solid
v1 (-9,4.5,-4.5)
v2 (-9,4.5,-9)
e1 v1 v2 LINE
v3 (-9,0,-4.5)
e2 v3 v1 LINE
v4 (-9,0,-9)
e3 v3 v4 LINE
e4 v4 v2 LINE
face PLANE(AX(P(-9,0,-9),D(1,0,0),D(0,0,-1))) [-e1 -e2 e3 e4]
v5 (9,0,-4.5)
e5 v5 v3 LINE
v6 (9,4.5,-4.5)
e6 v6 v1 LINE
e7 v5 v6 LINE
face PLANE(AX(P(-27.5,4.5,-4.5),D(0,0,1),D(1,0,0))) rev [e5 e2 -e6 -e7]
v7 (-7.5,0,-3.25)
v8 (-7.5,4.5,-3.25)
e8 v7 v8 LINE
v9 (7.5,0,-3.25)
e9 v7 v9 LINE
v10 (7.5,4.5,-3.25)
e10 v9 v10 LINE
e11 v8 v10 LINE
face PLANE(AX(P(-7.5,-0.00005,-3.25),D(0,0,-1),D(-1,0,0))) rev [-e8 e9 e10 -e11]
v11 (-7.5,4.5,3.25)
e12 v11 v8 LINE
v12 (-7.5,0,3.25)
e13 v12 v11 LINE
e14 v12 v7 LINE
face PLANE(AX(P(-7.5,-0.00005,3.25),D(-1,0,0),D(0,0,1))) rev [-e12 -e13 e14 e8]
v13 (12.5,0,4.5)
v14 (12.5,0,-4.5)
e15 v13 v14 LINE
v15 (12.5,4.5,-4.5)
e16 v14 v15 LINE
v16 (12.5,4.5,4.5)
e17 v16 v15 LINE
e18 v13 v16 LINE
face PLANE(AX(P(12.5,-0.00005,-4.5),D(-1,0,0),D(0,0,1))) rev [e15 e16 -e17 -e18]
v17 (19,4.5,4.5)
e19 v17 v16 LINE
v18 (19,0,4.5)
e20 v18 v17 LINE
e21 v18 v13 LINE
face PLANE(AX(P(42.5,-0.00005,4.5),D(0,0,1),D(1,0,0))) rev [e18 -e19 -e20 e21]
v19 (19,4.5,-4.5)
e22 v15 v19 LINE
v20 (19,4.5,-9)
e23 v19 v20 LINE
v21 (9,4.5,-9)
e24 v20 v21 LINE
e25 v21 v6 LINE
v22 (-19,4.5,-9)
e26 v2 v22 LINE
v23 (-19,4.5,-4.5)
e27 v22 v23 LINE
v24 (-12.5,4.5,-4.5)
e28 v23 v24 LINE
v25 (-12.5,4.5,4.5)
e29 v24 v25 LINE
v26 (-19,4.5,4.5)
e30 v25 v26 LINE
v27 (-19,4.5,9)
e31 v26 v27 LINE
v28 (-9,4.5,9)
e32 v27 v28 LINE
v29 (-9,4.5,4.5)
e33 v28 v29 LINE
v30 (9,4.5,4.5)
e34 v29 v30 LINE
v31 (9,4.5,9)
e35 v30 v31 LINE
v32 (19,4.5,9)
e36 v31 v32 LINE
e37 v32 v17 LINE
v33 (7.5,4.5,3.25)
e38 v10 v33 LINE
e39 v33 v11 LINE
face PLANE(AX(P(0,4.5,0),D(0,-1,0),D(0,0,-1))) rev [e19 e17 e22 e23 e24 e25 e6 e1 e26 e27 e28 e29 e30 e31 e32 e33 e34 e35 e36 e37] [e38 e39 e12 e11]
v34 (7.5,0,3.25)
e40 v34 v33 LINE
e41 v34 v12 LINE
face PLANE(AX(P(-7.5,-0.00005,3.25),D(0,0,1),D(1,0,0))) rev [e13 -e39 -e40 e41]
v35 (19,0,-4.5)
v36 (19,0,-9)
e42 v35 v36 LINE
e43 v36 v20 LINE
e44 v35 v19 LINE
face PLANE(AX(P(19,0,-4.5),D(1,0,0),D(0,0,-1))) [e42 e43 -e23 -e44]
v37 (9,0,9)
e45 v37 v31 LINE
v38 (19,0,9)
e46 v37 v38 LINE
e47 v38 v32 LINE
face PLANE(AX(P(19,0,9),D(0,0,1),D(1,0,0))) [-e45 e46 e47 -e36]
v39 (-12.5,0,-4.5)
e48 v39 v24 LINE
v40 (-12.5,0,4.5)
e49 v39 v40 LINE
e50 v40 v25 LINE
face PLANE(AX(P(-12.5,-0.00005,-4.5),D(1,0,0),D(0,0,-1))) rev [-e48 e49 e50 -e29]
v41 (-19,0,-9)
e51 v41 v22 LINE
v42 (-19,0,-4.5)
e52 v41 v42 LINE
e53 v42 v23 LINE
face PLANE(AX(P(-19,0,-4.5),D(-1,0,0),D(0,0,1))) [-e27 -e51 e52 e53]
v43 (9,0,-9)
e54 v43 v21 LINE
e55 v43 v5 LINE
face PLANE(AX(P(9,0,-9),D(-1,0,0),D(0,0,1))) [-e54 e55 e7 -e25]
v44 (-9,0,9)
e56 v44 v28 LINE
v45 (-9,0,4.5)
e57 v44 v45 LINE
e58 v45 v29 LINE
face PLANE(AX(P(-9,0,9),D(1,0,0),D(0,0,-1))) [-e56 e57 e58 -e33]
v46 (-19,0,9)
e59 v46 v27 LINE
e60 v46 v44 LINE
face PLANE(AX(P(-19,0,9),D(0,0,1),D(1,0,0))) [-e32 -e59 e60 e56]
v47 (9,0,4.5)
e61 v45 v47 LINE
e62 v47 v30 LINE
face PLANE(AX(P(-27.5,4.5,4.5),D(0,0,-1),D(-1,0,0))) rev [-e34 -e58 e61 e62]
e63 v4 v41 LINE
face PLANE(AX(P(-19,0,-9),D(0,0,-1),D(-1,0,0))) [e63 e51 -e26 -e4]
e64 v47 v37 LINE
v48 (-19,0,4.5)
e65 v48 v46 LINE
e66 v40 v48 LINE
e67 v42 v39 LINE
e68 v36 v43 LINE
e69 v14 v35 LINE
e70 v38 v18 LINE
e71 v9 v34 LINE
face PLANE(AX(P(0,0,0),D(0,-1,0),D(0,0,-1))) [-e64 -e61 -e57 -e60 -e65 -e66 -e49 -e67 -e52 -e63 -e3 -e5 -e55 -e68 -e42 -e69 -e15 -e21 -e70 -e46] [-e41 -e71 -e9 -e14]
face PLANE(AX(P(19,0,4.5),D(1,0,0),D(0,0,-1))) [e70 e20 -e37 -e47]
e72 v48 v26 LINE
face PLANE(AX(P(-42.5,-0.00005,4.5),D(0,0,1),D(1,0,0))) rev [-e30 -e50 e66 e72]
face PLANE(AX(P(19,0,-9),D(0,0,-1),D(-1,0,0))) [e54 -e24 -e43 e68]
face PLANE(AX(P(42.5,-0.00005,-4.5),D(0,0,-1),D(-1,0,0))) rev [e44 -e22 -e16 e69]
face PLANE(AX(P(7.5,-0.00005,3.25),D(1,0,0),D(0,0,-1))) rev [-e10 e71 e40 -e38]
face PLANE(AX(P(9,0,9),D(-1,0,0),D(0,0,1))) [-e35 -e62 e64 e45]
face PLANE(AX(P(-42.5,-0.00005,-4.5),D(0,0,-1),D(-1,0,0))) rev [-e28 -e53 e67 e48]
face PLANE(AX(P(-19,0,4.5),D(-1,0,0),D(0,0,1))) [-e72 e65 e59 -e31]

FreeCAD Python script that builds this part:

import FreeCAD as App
import Part
import Sketcher

doc = App.newDocument("Part")
body = doc.addObject("PartDesign::Body", "Body")

# Sketch on XZ plane
sketch1 = body.newObject("Sketcher::SketchObject", "Sketch")
sketch1.AttachmentSupport = (doc.getObject("XZ_Plane"), [""])
sketch1.MapMode = "FlatFace"
sketch1.addGeometry([
    Part.LineSegment(App.Vector(-28, -4, 0), App.Vector(-28, 4, 0)),
    Part.LineSegment(App.Vector(-28, 4, 0), App.Vector(28, 4, 0)),
    Part.LineSegment(App.Vector(28, 4, 0), App.Vector(28, -4, 0)),
    Part.LineSegment(App.Vector(28, -4, 0), App.Vector(-28, -4, 0)),
], False)
sketch1.addConstraint([
    Sketcher.Constraint("Coincident", 0, 2, 1, 1),
    Sketcher.Constraint("Coincident", 1, 2, 2, 1),
    Sketcher.Constraint("Coincident", 2, 2, 3, 1),
    Sketcher.Constraint("Coincident", 3, 2, 0, 1),
    Sketcher.Constraint("Vertical", 0),
    Sketcher.Constraint("Horizontal", 1),
    Sketcher.Constraint("Vertical", 2),
    Sketcher.Constraint("Horizontal", 3),
    Sketcher.Constraint("Symmetric", 0, 2, 2, 2, -1, 1),
    Sketcher.Constraint("DistanceX", 1, 1, 1, 2, 55.0),
    Sketcher.Constraint("DistanceY", 0, 1, 0, 2, 9.0),
])
pad1 = body.newObject("PartDesign::Pad", "Pad")
pad1.Profile = sketch1
pad1.Length = 4.5
pad1.Reversed = True

# Sketch on XZ plane
sketch2 = body.newObject("Sketcher::SketchObject", "Sketch001")
sketch2.AttachmentSupport = (doc.getObject("XZ_Plane"), [""])
sketch2.MapMode = "FlatFace"
sketch2.AttachmentOffset = App.Placement(App.Vector(0, 0, -4.5), App.Rotation())
sketch2.addGeometry([
    Part.LineSegment(App.Vector(-19, 4.5, 0), App.Vector(-19, 9, 0)),  # 0
    Part.LineSegment(App.Vector(-19, 9, 0), App.Vector(-9, 9, 0)),  # 1
    Part.LineSegment(App.Vector(-9, 9, 0), App.Vector(-9, 4.5, 0)),  # 2
    Part.LineSegment(App.Vector(-9, 4.5, 0), App.Vector(-19, 4.5, 0)),  # 3
    Part.LineSegment(App.Vector(9, 4.5, 0), App.Vector(9, 9, 0)),  # 4
    Part.LineSegment(App.Vector(9, 9, 0), App.Vector(19, 9, 0)),  # 5
    Part.LineSegment(App.Vector(19, 9, 0), App.Vector(19, 4.5, 0)),  # 6
    Part.LineSegment(App.Vector(19, 4.5, 0), App.Vector(9, 4.5, 0)),  # 7
    Part.LineSegment(App.Vector(9, -9, 0), App.Vector(9, -4.5, 0)),  # 8
    Part.LineSegment(App.Vector(9, -4.5, 0), App.Vector(19, -4.5, 0)),  # 9
    Part.LineSegment(App.Vector(19, -4.5, 0), App.Vector(19, -9, 0)),  # 10
    Part.LineSegment(App.Vector(19, -9, 0), App.Vector(9, -9, 0)),  # 11
    Part.LineSegment(App.Vector(-19, -9, 0), App.Vector(-19, -4.5, 0)),  # 12
    Part.LineSegment(App.Vector(-19, -4.5, 0), App.Vector(-9, -4.5, 0)),  # 13
    Part.LineSegment(App.Vector(-9, -4.5, 0), App.Vector(-9, -9, 0)),  # 14
    Part.LineSegment(App.Vector(-9, -9, 0), App.Vector(-19, -9, 0)),  # 15
], False)
sketch2.addConstraint([
    Sketcher.Constraint("Coincident", 0, 2, 1, 1),
    Sketcher.Constraint("Coincident", 1, 2, 2, 1),
    Sketcher.Constraint("Coincident", 2, 2, 3, 1),
    Sketcher.Constraint("Coincident", 3, 2, 0, 1),
    Sketcher.Constraint("Coincident", 4, 2, 5, 1),
    Sketcher.Constraint("Coincident", 5, 2, 6, 1),
    Sketcher.Constraint("Coincident", 6, 2, 7, 1),
    Sketcher.Constraint("Coincident", 7, 2, 4, 1),
    Sketcher.Constraint("Coincident", 8, 2, 9, 1),
    Sketcher.Constraint("Coincident", 9, 2, 10, 1),
    Sketcher.Constraint("Coincident", 10, 2, 11, 1),
    Sketcher.Constraint("Coincident", 11, 2, 8, 1),
    Sketcher.Constraint("Coincident", 12, 2, 13, 1),
    Sketcher.Constraint("Coincident", 13, 2, 14, 1),
    Sketcher.Constraint("Coincident", 14, 2, 15, 1),
    Sketcher.Constraint("Coincident", 15, 2, 12, 1),
    Sketcher.Constraint("Vertical", 0),
    Sketcher.Constraint("Horizontal", 1),
    Sketcher.Constraint("Vertical", 2),
    Sketcher.Constraint("Horizontal", 3),
    Sketcher.Constraint("Vertical", 4),
    Sketcher.Constraint("Horizontal", 5),
    Sketcher.Constraint("Vertical", 6),
    Sketcher.Constraint("Horizontal", 7),
    Sketcher.Constraint("Vertical", 8),
    Sketcher.Constraint("Horizontal", 9),
    Sketcher.Constraint("Vertical", 10),
    Sketcher.Constraint("Horizontal", 11),
    Sketcher.Constraint("Vertical", 12),
    Sketcher.Constraint("Horizontal", 13),
    Sketcher.Constraint("Vertical", 14),
    Sketcher.Constraint("Horizontal", 15),
    Sketcher.Constraint("Symmetric", 2, 2, 8, 2, -1, 1),
    Sketcher.Constraint("Symmetric", 0, 2, 10, 2, -1, 1),
    Sketcher.Constraint("Symmetric", 6, 2, 12, 2, -1, 1),
    Sketcher.Constraint("Symmetric", 4, 2, 14, 2, -1, 1),
    Sketcher.Constraint("Symmetric", 1, 2, 4, 2, -2),
    Sketcher.Constraint("Symmetric", 3, 2, 6, 2, -2),
    Sketcher.Constraint("DistanceX", 1, 1, 1, 2, 10.0),
    Sketcher.Constraint("DistanceY", 0, 1, 0, 2, 4.5),
    Sketcher.Constraint("DistanceX", 0, 2, -1, 1, 19.0),
    Sketcher.Constraint("DistanceY", -1, 1, 0, 2, 9.0),
])
pad2 = body.newObject("PartDesign::Pad", "Pad001")
pad2.Profile = sketch2
pad2.Type = "UpToLast"

# Sketch on XZ plane
sketch3 = body.newObject("Sketcher::SketchObject", "Sketch002")
sketch3.AttachmentSupport = (doc.getObject("XZ_Plane"), [""])
sketch3.MapMode = "FlatFace"
sketch3.AttachmentOffset = App.Placement(App.Vector(0, 0, -4.5), App.Rotation())
sketch3.addGeometry([
    Part.LineSegment(App.Vector(-42, -4, 0), App.Vector(-42, 4, 0)),  # 0
    Part.LineSegment(App.Vector(-42, 4, 0), App.Vector(-12, 4, 0)),  # 1
    Part.LineSegment(App.Vector(-12, 4, 0), App.Vector(-12, -4, 0)),  # 2
    Part.LineSegment(App.Vector(-12, -4, 0), App.Vector(-42, -4, 0)),  # 3
    Part.LineSegment(App.Vector(12, -4, 0), App.Vector(12, 4, 0)),  # 4
    Part.LineSegment(App.Vector(12, 4, 0), App.Vector(42, 4, 0)),  # 5
    Part.LineSegment(App.Vector(42, 4, 0), App.Vector(42, -4, 0)),  # 6
    Part.LineSegment(App.Vector(42, -4, 0), App.Vector(12, -4, 0)),  # 7
    Part.LineSegment(App.Vector(-8, -3, 0), App.Vector(-8, 3, 0)),  # 8
    Part.LineSegment(App.Vector(-8, 3, 0), App.Vector(8, 3, 0)),  # 9
    Part.LineSegment(App.Vector(8, 3, 0), App.Vector(8, -3, 0)),  # 10
    Part.LineSegment(App.Vector(8, -3, 0), App.Vector(-8, -3, 0)),  # 11
], False)
sketch3.addConstraint([
    Sketcher.Constraint("Coincident", 0, 2, 1, 1),
    Sketcher.Constraint("Coincident", 1, 2, 2, 1),
    Sketcher.Constraint("Coincident", 2, 2, 3, 1),
    Sketcher.Constraint("Coincident", 3, 2, 0, 1),
    Sketcher.Constraint("Coincident", 4, 2, 5, 1),
    Sketcher.Constraint("Coincident", 5, 2, 6, 1),
    Sketcher.Constraint("Coincident", 6, 2, 7, 1),
    Sketcher.Constraint("Coincident", 7, 2, 4, 1),
    Sketcher.Constraint("Coincident", 8, 2, 9, 1),
    Sketcher.Constraint("Coincident", 9, 2, 10, 1),
    Sketcher.Constraint("Coincident", 10, 2, 11, 1),
    Sketcher.Constraint("Coincident", 11, 2, 8, 1),
    Sketcher.Constraint("Vertical", 0),
    Sketcher.Constraint("Horizontal", 1),
    Sketcher.Constraint("Vertical", 2),
    Sketcher.Constraint("Horizontal", 3),
    Sketcher.Constraint("Vertical", 4),
    Sketcher.Constraint("Horizontal", 5),
    Sketcher.Constraint("Vertical", 6),
    Sketcher.Constraint("Horizontal", 7),
    Sketcher.Constraint("Vertical", 8),
    Sketcher.Constraint("Horizontal", 9),
    Sketcher.Constraint("Vertical", 10),
    Sketcher.Constraint("Horizontal", 11),
    Sketcher.Constraint("Symmetric", 2, 2, 4, 2, -1, 1),
    Sketcher.Constraint("Symmetric", 0, 2, 6, 2, -1, 1),
    Sketcher.Constraint("Symmetric", 8, 2, 10, 2, -1, 1),
    Sketcher.Constraint("Horizontal", 1, 2, 4, 2),
    Sketcher.Constraint("DistanceX", 1, 1, 1, 2, 30.0),
    Sketcher.Constraint("DistanceX", 9, 1, 9, 2, 15.0),
    Sketcher.Constraint("DistanceY", 0, 1, 0, 2, 9.0),
    Sketcher.Constraint("DistanceY", 8, 1, 8, 2, 6.5),
    Sketcher.Constraint("DistanceX", 1, 2, 4, 2, 25.0),
])
pocket1 = body.newObject("PartDesign::Pocket", "Pocket")
pocket1.Profile = sketch3
pocket1.Type = "ThroughAll"
pocket1.Midplane = True

doc.recompute()
